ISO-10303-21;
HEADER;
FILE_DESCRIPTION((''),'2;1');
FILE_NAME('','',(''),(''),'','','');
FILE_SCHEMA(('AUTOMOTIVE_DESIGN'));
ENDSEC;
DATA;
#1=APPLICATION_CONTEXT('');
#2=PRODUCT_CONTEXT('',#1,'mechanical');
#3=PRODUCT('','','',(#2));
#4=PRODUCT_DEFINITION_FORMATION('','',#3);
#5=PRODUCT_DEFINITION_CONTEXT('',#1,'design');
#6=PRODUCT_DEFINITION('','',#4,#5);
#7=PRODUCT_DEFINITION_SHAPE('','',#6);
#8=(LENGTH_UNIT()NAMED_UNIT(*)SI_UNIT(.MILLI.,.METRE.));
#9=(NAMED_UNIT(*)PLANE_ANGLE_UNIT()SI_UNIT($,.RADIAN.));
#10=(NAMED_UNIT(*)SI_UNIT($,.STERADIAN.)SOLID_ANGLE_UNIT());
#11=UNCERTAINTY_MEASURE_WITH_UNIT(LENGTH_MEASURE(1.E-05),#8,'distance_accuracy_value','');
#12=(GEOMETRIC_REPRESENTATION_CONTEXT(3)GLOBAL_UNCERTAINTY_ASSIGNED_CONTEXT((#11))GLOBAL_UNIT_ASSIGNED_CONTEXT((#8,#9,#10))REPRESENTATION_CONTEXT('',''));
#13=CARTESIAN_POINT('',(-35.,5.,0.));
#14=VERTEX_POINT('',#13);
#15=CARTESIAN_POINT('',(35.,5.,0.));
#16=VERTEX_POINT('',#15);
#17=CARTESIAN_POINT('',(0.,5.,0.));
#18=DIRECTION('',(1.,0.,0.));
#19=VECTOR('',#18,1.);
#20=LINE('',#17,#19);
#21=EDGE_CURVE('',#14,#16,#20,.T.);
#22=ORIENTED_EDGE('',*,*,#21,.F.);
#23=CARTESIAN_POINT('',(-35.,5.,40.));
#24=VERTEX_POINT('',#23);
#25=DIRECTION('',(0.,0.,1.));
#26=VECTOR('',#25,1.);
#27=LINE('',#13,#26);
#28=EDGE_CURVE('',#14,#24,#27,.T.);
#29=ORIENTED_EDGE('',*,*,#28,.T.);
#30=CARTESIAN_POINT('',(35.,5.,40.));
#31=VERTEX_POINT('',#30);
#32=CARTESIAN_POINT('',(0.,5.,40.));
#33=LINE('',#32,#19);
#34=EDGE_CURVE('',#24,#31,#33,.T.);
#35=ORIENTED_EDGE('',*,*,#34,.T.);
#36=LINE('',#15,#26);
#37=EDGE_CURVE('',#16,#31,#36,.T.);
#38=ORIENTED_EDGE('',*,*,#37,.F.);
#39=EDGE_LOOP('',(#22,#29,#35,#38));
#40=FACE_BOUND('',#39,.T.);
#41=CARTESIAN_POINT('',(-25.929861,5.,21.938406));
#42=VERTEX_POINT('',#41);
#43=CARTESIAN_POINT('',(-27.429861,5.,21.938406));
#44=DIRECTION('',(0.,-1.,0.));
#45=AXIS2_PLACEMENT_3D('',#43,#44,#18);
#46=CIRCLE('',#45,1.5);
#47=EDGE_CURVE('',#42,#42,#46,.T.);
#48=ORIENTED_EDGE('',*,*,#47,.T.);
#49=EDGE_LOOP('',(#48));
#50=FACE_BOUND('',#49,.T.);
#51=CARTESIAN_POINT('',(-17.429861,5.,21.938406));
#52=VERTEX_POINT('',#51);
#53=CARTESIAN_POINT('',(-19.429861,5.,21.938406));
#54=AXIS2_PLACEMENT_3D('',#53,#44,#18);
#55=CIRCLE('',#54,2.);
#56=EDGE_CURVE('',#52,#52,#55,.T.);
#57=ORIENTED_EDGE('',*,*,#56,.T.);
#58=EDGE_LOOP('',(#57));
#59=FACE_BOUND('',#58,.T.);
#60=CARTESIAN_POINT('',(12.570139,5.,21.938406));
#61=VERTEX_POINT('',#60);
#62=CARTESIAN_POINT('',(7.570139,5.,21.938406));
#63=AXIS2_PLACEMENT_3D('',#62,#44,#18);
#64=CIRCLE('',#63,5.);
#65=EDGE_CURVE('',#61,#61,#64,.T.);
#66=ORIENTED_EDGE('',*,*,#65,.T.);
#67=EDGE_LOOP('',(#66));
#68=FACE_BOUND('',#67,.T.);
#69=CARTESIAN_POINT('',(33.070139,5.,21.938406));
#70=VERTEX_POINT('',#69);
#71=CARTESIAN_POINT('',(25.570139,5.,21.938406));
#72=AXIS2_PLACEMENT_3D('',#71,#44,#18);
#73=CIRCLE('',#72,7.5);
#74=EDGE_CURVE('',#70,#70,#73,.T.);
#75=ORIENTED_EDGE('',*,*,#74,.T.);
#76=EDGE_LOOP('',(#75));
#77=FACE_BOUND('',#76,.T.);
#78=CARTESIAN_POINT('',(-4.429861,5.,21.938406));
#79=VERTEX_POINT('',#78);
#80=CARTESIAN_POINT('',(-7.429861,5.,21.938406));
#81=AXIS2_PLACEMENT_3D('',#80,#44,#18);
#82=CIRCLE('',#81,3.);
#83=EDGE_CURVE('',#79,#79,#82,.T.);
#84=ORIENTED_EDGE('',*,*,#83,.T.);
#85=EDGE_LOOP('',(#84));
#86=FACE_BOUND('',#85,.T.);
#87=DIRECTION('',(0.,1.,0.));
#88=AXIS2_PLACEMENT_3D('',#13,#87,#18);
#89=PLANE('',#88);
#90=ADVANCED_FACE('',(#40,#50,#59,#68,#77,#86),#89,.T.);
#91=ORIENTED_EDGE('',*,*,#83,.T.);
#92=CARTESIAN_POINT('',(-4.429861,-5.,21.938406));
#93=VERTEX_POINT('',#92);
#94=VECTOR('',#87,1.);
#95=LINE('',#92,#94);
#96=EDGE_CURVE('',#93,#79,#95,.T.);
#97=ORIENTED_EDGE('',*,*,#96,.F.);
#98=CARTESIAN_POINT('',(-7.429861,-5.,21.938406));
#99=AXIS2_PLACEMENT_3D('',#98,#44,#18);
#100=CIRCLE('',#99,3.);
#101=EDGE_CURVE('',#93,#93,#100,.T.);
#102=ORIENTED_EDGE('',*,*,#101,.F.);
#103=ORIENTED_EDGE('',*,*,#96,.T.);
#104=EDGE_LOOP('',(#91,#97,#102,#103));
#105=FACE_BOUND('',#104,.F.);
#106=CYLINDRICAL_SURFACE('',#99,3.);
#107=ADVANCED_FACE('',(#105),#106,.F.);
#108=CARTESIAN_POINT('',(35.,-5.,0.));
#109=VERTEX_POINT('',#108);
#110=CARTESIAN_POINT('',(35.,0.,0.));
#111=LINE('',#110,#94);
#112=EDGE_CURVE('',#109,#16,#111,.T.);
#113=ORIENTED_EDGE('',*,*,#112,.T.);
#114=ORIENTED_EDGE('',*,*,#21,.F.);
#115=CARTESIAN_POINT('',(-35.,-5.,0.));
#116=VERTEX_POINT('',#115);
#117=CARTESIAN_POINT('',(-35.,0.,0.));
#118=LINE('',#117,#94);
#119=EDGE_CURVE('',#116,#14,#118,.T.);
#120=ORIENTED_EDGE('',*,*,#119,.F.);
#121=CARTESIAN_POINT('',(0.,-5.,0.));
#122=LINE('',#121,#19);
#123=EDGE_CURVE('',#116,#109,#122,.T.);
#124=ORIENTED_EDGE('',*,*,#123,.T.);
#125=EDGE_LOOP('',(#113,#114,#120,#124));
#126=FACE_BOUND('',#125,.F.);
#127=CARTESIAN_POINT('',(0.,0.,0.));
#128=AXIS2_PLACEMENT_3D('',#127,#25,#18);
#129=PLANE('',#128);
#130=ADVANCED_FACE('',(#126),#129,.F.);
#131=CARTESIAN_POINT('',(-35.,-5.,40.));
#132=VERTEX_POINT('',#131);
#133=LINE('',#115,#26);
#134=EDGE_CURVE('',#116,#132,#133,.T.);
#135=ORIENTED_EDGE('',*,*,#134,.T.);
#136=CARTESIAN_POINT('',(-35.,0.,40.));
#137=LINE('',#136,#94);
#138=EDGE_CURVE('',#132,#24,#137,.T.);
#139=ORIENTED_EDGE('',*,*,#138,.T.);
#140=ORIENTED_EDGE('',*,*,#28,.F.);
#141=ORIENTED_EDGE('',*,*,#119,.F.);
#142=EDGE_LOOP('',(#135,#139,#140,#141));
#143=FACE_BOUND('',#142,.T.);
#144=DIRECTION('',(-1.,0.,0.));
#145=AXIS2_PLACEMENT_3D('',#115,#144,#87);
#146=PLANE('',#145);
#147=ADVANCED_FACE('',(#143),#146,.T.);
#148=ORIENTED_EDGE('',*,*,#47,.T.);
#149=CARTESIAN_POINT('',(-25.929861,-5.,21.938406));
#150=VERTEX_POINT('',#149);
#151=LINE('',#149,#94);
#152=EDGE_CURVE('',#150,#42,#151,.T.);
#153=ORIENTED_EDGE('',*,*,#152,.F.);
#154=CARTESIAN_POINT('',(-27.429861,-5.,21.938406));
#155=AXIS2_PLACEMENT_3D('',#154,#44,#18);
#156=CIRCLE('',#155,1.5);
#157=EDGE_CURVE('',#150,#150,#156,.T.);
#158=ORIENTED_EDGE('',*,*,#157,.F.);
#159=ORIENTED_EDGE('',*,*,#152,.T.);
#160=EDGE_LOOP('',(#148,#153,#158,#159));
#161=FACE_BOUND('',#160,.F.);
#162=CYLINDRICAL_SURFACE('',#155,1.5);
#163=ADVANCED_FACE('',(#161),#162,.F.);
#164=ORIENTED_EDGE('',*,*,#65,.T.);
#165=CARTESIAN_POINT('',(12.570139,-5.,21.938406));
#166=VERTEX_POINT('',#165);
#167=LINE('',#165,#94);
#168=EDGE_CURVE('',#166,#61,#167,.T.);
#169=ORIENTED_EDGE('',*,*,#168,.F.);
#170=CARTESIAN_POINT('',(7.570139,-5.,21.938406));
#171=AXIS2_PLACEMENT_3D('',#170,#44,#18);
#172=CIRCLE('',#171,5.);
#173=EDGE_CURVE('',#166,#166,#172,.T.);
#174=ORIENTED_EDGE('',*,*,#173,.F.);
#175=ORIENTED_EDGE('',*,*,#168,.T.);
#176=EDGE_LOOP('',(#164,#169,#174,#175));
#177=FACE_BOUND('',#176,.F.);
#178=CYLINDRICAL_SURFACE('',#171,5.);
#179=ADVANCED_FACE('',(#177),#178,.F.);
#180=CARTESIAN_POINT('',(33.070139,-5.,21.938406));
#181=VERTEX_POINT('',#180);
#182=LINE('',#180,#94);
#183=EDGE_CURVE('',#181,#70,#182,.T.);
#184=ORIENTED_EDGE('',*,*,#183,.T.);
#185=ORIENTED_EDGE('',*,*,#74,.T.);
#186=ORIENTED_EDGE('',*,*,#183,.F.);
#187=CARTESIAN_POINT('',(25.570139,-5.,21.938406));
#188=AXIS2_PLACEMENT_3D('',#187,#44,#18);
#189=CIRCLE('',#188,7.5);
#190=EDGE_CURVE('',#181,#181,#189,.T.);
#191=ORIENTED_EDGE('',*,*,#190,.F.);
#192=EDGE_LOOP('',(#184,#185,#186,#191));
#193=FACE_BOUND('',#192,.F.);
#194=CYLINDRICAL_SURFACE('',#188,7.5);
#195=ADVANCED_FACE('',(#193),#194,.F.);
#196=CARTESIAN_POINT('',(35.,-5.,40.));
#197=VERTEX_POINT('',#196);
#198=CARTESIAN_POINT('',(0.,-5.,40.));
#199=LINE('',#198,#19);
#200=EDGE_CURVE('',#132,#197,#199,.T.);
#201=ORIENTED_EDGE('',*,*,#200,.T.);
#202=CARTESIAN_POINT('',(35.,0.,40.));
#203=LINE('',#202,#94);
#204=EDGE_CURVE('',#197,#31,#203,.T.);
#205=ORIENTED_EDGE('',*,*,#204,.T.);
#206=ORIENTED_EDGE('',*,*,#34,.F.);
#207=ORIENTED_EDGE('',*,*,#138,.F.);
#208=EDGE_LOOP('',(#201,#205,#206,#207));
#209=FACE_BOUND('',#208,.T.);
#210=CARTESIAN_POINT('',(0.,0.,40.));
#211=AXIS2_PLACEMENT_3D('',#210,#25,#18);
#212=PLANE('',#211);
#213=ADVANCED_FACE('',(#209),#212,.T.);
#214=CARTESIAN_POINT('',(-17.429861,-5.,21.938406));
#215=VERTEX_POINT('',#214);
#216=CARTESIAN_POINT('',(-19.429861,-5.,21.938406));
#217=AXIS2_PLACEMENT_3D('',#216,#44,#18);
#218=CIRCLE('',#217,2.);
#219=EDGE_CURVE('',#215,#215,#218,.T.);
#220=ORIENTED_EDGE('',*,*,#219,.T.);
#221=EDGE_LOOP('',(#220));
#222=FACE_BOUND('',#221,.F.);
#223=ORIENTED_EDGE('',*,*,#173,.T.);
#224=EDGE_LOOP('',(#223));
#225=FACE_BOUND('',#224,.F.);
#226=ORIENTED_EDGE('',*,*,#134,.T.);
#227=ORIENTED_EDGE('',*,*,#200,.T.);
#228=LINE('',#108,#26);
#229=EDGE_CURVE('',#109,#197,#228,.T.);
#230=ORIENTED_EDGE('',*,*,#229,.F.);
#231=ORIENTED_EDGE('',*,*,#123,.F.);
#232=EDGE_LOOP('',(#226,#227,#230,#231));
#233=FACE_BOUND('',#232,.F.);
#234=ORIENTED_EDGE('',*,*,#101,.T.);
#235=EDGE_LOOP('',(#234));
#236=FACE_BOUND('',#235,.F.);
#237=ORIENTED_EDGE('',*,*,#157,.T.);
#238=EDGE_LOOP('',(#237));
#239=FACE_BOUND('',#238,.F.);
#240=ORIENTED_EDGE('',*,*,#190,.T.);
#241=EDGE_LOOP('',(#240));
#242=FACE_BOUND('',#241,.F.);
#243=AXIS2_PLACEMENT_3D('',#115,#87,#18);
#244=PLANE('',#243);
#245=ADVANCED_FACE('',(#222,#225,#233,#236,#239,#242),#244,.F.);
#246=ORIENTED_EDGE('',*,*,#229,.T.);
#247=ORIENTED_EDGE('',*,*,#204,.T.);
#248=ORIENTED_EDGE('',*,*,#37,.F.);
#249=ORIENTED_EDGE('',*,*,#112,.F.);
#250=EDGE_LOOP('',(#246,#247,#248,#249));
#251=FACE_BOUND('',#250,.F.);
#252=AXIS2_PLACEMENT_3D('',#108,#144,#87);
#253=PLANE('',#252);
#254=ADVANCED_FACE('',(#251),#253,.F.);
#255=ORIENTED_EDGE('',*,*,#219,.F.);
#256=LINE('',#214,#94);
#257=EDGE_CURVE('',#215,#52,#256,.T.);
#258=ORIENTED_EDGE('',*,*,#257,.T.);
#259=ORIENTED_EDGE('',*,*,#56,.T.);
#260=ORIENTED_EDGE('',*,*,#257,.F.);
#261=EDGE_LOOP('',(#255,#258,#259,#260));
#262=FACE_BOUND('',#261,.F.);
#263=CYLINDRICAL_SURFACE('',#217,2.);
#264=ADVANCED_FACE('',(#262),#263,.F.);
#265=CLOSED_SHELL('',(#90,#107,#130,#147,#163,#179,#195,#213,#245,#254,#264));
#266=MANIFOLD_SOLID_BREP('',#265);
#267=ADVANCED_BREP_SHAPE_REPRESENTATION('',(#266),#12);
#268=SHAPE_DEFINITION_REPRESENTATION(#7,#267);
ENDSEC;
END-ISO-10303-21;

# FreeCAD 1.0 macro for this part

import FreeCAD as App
import Part
import Sketcher
from FreeCAD import Vector
Q = App.Units.Quantity

doc = App.newDocument("Part")
body = doc.addObject("PartDesign::Body", "Body")

# Sketch on XY plane
sketch1 = doc.addObject("Sketcher::SketchObject", "Sketch")
body.addObject(sketch1)
sketch1.AttachmentSupport = (doc.XY_Plane, [""])
sketch1.MapMode = "FlatFace"
sketch1.addGeometry(Part.LineSegment(Vector(-35, 5, 0), Vector(-35, -5, 0)), False)
sketch1.addGeometry(Part.LineSegment(Vector(-35, -5, 0), Vector(35, -5, 0)), False)
sketch1.addGeometry(Part.LineSegment(Vector(35, -5, 0), Vector(35, 5, 0)), False)
sketch1.addGeometry(Part.LineSegment(Vector(35, 5, 0), Vector(-35, 5, 0)), False)
sketch1.addConstraint(Sketcher.Constraint("Coincident", 0, 2, 1, 1))
sketch1.addConstraint(Sketcher.Constraint("Coincident", 1, 2, 2, 1))
sketch1.addConstraint(Sketcher.Constraint("Coincident", 2, 2, 3, 1))
sketch1.addConstraint(Sketcher.Constraint("Coincident", 3, 2, 0, 1))
sketch1.addConstraint(Sketcher.Constraint("Vertical", 0))
sketch1.addConstraint(Sketcher.Constraint("Horizontal", 1))
sketch1.addConstraint(Sketcher.Constraint("Vertical", 2))
sketch1.addConstraint(Sketcher.Constraint("Horizontal", 3))
sketch1.addConstraint(Sketcher.Constraint("Symmetric", 0, 2, 2, 2, -1, 1))
sketch1.addConstraint(Sketcher.Constraint("DistanceX", 1, 1, 1, 2, Q("70 mm")))
sketch1.addConstraint(Sketcher.Constraint("DistanceY", 0, 2, 0, 1, Q("10 mm")))
pad1 = doc.addObject("PartDesign::Pad", "Pad")
body.addObject(pad1)
pad1.Profile = sketch1
pad1.Length = 40

# Sketch on XZ plane
sketch2 = doc.addObject("Sketcher::SketchObject", "Sketch001")
body.addObject(sketch2)
sketch2.AttachmentSupport = (doc.XZ_Plane, [""])
sketch2.MapMode = "FlatFace"
sketch2.AttachmentOffset = App.Placement(Vector(0, 0, 5), App.Rotation())
sketch2.addGeometry(Part.Circle(Vector(7.570139, 21.938406, 0), Vector(0, 0, 1), 5), False)
sketch2.addGeometry(Part.Circle(Vector(25.570139, 21.938406, 0), Vector(0, 0, 1), 7.5), False)
sketch2.addGeometry(Part.Circle(Vector(-7.429861, 21.938406, 0), Vector(0, 0, 1), 3), False)
sketch2.addGeometry(Part.Circle(Vector(-19.429861, 21.938406, 0), Vector(0, 0, 1), 2), False)
sketch2.addGeometry(Part.Circle(Vector(-27.429861, 21.938406, 0), Vector(0, 0, 1), 1.5), False)
sketch2.addConstraint(Sketcher.Constraint("Horizontal", 0, 3, 1, 3))
sketch2.addConstraint(Sketcher.Constraint("Horizontal", 1, 3, 2, 3))
sketch2.addConstraint(Sketcher.Constraint("Horizontal", 2, 3, 3, 3))
sketch2.addConstraint(Sketcher.Constraint("Horizontal", 3, 3, 4, 3))
sketch2.addConstraint(Sketcher.Constraint("Diameter", 0, Q("10 mm")))
sketch2.addConstraint(Sketcher.Constraint("Diameter", 1, Q("15 mm")))
sketch2.addConstraint(Sketcher.Constraint("Diameter", 2, Q("6 mm")))
sketch2.addConstraint(Sketcher.Constraint("Diameter", 3, Q("4 mm")))
sketch2.addConstraint(Sketcher.Constraint("Diameter", 4, Q("3 mm")))
sketch2.addConstraint(Sketcher.Constraint("DistanceX", 0, 3, 1, 3, Q("18 mm")))
sketch2.addConstraint(Sketcher.Constraint("DistanceX", 2, 3, 0, 3, Q("15 mm")))
sketch2.addConstraint(Sketcher.Constraint("DistanceX", 3, 3, 2, 3, Q("12 mm")))
sketch2.addConstraint(Sketcher.Constraint("DistanceX", 4, 3, 3, 3, Q("8 mm")))
sketch2.addConstraint(Sketcher.Constraint("DistanceX", -1, 1, 0, 3, Q("7.570139 mm")))
sketch2.addConstraint(Sketcher.Constraint("DistanceY", -1, 1, 0, 3, Q("21.938406 mm")))
pocket1 = doc.addObject("PartDesign::Pocket", "Pocket")
body.addObject(pocket1)
pocket1.Profile = sketch2
pocket1.Length = 25

doc.recompute()
